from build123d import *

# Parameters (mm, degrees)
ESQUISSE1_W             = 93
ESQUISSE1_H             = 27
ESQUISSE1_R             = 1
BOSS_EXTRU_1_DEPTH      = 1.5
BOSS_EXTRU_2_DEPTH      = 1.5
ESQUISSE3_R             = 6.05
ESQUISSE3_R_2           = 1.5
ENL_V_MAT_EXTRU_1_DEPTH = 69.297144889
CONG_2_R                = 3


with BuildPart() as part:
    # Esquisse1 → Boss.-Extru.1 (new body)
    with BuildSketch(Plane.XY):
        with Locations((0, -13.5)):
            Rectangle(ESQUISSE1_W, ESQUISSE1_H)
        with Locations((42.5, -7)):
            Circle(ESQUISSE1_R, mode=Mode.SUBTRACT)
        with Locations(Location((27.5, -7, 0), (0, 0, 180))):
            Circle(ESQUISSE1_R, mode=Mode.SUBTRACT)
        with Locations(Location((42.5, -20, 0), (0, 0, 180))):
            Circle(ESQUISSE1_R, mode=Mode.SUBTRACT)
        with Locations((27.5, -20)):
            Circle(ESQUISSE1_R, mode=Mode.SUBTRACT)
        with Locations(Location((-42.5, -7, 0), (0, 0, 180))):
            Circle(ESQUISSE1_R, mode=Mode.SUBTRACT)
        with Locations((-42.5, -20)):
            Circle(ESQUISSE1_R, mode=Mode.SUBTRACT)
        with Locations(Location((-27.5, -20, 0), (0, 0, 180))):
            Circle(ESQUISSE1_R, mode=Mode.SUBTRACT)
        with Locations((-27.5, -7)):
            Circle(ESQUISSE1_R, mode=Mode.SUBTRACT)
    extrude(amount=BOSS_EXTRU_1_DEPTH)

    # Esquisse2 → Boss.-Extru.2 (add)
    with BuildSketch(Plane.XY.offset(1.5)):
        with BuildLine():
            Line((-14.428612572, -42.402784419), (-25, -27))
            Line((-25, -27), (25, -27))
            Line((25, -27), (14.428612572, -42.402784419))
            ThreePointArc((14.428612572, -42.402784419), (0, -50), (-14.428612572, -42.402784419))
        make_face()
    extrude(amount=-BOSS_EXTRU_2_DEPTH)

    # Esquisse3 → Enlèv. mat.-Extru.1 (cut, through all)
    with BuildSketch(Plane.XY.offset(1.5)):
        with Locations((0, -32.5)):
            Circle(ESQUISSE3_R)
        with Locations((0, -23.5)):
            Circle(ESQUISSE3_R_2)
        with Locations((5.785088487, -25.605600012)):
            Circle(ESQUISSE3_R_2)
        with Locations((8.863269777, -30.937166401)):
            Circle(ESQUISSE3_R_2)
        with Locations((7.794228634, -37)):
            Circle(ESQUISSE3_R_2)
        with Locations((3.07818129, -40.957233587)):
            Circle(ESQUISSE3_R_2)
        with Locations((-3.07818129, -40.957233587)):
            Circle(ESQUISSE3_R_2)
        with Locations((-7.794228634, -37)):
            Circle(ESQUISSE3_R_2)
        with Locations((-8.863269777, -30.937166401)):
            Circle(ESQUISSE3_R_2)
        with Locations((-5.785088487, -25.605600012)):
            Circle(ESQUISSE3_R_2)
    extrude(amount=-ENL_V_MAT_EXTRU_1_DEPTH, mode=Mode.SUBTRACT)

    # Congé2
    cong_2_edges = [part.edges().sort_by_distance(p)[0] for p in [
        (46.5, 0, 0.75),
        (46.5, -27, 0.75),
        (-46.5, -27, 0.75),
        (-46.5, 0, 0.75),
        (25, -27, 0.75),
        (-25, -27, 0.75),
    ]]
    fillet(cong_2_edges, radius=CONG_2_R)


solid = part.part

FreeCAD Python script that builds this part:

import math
import FreeCAD as App
import Part
import Sketcher

V = App.Vector


def edges_at(feature, points):
    """Names of the edges that pass closest to the given points."""
    edges = feature.Shape.Edges
    near = lambda p: min(range(len(edges)), key=lambda i: edges[i].distToShape(Part.Vertex(*p))[0])
    return sorted({f"Edge{near(p) + 1}" for p in points})

doc = App.newDocument("Part")
body = doc.addObject("PartDesign::Body", "Body")

# Sketch on XY plane
sketch1 = body.newObject("Sketcher::SketchObject", "Sketch")
sketch1.AttachmentSupport = (doc.getObject("XY_Plane"), [""])
sketch1.MapMode = "FlatFace"
sketch1.addGeometry(Part.LineSegment(V(-46.5, 0, 0), V(-46.5, -27, 0)), False)
sketch1.addGeometry(Part.LineSegment(V(-46.5, -27, 0), V(46.5, -27, 0)), False)
sketch1.addGeometry(Part.LineSegment(V(46.5, -27, 0), V(46.5, 0, 0)), False)
sketch1.addGeometry(Part.LineSegment(V(46.5, 0, 0), V(-46.5, 0, 0)), False)
sketch1.addGeometry(Part.Circle(V(-42.5, -20, 0), V(0, 0, 1), 1), False)
sketch1.addGeometry(Part.Circle(V(-27.5, -20, 0), V(0, 0, 1), 1), False)
sketch1.addGeometry(Part.Circle(V(27.5, -20, 0), V(0, 0, 1), 1), False)
sketch1.addGeometry(Part.Circle(V(42.5, -20, 0), V(0, 0, 1), 1), False)
sketch1.addGeometry(Part.Circle(V(-42.5, -7, 0), V(0, 0, 1), 1), False)
sketch1.addGeometry(Part.Circle(V(-27.5, -7, 0), V(0, 0, 1), 1), False)
sketch1.addGeometry(Part.Circle(V(27.5, -7, 0), V(0, 0, 1), 1), False)
sketch1.addGeometry(Part.Circle(V(42.5, -7, 0), V(0, 0, 1), 1), False)
sketch1.addConstraint(Sketcher.Constraint("Coincident", 0, 2, 1, 1))
sketch1.addConstraint(Sketcher.Constraint("Coincident", 1, 2, 2, 1))
sketch1.addConstraint(Sketcher.Constraint("Coincident", 2, 2, 3, 1))
sketch1.addConstraint(Sketcher.Constraint("Coincident", 3, 2, 0, 1))
sketch1.addConstraint(Sketcher.Constraint("Vertical", 0))
sketch1.addConstraint(Sketcher.Constraint("Horizontal", 1))
sketch1.addConstraint(Sketcher.Constraint("Vertical", 2))
sketch1.addConstraint(Sketcher.Constraint("Horizontal", 3))
sketch1.addConstraint(Sketcher.Constraint("Equal", 4, 5))
sketch1.addConstraint(Sketcher.Constraint("Equal", 5, 6))
sketch1.addConstraint(Sketcher.Constraint("Equal", 6, 7))
sketch1.addConstraint(Sketcher.Constraint("Equal", 7, 8))
sketch1.addConstraint(Sketcher.Constraint("Equal", 8, 9))
sketch1.addConstraint(Sketcher.Constraint("Equal", 9, 10))
sketch1.addConstraint(Sketcher.Constraint("Equal", 10, 11))
sketch1.addConstraint(Sketcher.Constraint("Symmetric", 2, 2, 3, 2, -1, 1))
sketch1.addConstraint(Sketcher.Constraint("Symmetric", 5, 3, 6, 3, -2))
sketch1.addConstraint(Sketcher.Constraint("Symmetric", 4, 3, 7, 3, -2))
sketch1.addConstraint(Sketcher.Constraint("Symmetric", 9, 3, 10, 3, -2))
sketch1.addConstraint(Sketcher.Constraint("Symmetric", 8, 3, 11, 3, -2))
sketch1.addConstraint(Sketcher.Constraint("Horizontal", 4, 3, 5, 3))
sketch1.addConstraint(Sketcher.Constraint("Horizontal", 8, 3, 9, 3))
sketch1.addConstraint(Sketcher.Constraint("Vertical", 4, 3, 8, 3))
sketch1.addConstraint(Sketcher.Constraint("Vertical", 5, 3, 9, 3))
sketch1.addConstraint(Sketcher.Constraint("Diameter", 4, 2.0))
sketch1.addConstraint(Sketcher.Constraint("DistanceX", 1, 1, 1, 2, 93.0))
sketch1.addConstraint(Sketcher.Constraint("DistanceY", 0, 2, 0, 1, 27.0))
sketch1.addConstraint(Sketcher.Constraint("DistanceY", 4, 3, -1, 1, 20.0))
sketch1.addConstraint(Sketcher.Constraint("DistanceY", 8, 3, -1, 1, 7.0))
sketch1.addConstraint(Sketcher.Constraint("DistanceX", 4, 3, 5, 3, 15.0))
sketch1.addConstraint(Sketcher.Constraint("DistanceX", 5, 3, 6, 3, 55.0))
pad1 = body.newObject("PartDesign::Pad", "Pad")
pad1.Profile = sketch1
pad1.Length = 1.5

# Sketch on XY plane
sketch2 = body.newObject("Sketcher::SketchObject", "Sketch001")
sketch2.AttachmentSupport = (doc.getObject("XY_Plane"), [""])
sketch2.MapMode = "FlatFace"
sketch2.AttachmentOffset = App.Placement(V(0, 0, 1.5), App.Rotation())
sketch2.addGeometry(Part.LineSegment(V(-25, -27, 0), V(-14, -42, 0)), False)
sketch2.addGeometry(Part.ArcOfCircle(Part.Circle(V(0, -32, 0), V(0, 0, 1), 18), math.radians(-146), math.radians(-34)), False)
sketch2.addGeometry(Part.LineSegment(V(14, -42, 0), V(25, -27, 0)), False)
sketch2.addGeometry(Part.LineSegment(V(25, -27, 0), V(-25, -27, 0)), False)
sketch2.addConstraint(Sketcher.Constraint("Tangent", 0, 2, 1, 1))
sketch2.addConstraint(Sketcher.Constraint("Tangent", 1, 2, 2, 1))
sketch2.addConstraint(Sketcher.Constraint("Coincident", 2, 2, 3, 1))
sketch2.addConstraint(Sketcher.Constraint("Coincident", 3, 2, 0, 1))
sketch2.addConstraint(Sketcher.Constraint("Horizontal", 3))
sketch2.addConstraint(Sketcher.Constraint("Symmetric", 0, 2, 1, 2, -2))
sketch2.addConstraint(Sketcher.Constraint("Radius", 1, 17.5))
sketch2.addConstraint(Sketcher.Constraint("DistanceX", 3, 2, 3, 1, 50.0))
sketch2.addConstraint(Sketcher.Constraint("DistanceY", 2, 2, -1, 1, 27.0))
sketch2.addConstraint(Sketcher.Constraint("DistanceY", 1, 3, -1, 1, 32.5))
pad2 = body.newObject("PartDesign::Pad", "Pad001")
pad2.Profile = sketch2
pad2.Length = 1.5
pad2.Reversed = True

# Sketch on XY plane
sketch3 = body.newObject("Sketcher::SketchObject", "Sketch002")
sketch3.AttachmentSupport = (doc.getObject("XY_Plane"), [""])
sketch3.MapMode = "FlatFace"
sketch3.AttachmentOffset = App.Placement(V(0, 0, 1.5), App.Rotation())
sketch3.addGeometry(Part.Circle(V(0, -32.5, 0), V(0, 0, 1), 6), False)
sketch3.addGeometry(Part.Circle(V(0, -23.5, 0), V(0, 0, 1), 1.5), False)
sketch3.addGeometry(Part.Circle(V(5.8, -25.6, 0), V(0, 0, 1), 1.5), False)
sketch3.addGeometry(Part.Circle(V(8.9, -30.9, 0), V(0, 0, 1), 1.5), False)
sketch3.addGeometry(Part.Circle(V(7.8, -37, 0), V(0, 0, 1), 1.5), False)
sketch3.addGeometry(Part.Circle(V(3.1, -41, 0), V(0, 0, 1), 1.5), False)
sketch3.addGeometry(Part.Circle(V(-3.1, -41, 0), V(0, 0, 1), 1.5), False)
sketch3.addGeometry(Part.Circle(V(-7.8, -37, 0), V(0, 0, 1), 1.5), False)
sketch3.addGeometry(Part.Circle(V(-8.9, -30.9, 0), V(0, 0, 1), 1.5), False)
sketch3.addGeometry(Part.Circle(V(-5.8, -25.6, 0), V(0, 0, 1), 1.5), False)
sketch3.addConstraint(Sketcher.Constraint("Equal", 1, 2))
sketch3.addConstraint(Sketcher.Constraint("Equal", 2, 3))
sketch3.addConstraint(Sketcher.Constraint("Equal", 3, 4))
sketch3.addConstraint(Sketcher.Constraint("Equal", 4, 5))
sketch3.addConstraint(Sketcher.Constraint("Equal", 5, 6))
sketch3.addConstraint(Sketcher.Constraint("Equal", 6, 7))
sketch3.addConstraint(Sketcher.Constraint("Equal", 7, 8))
sketch3.addConstraint(Sketcher.Constraint("Equal", 8, 9))
sketch3.addConstraint(Sketcher.Constraint("Symmetric", 5, 3, 6, 3, -2))
sketch3.addConstraint(Sketcher.Constraint("Symmetric", 4, 3, 7, 3, -2))
sketch3.addConstraint(Sketcher.Constraint("Symmetric", 3, 3, 8, 3, -2))
sketch3.addConstraint(Sketcher.Constraint("Symmetric", 2, 3, 9, 3, -2))
sketch3.addConstraint(Sketcher.Constraint("PointOnObject", 0, 3, -2))
sketch3.addConstraint(Sketcher.Constraint("PointOnObject", 1, 3, -2))
sketch3.addConstraint(Sketcher.Constraint("Diameter", 1, 3.0))
sketch3.addConstraint(Sketcher.Constraint("Diameter", 0, 12.1))
sketch3.addConstraint(Sketcher.Constraint("DistanceY", 4, 3, -1, 1, 37.0))
sketch3.addConstraint(Sketcher.Constraint("DistanceY", 0, 3, 1, 3, 9.0))
sketch3.addConstraint(Sketcher.Constraint("DistanceY", 0, 3, -1, 1, 32.5))
sketch3.addConstraint(Sketcher.Constraint("DistanceY", 2, 3, -1, 1, 25.6056))
sketch3.addConstraint(Sketcher.Constraint("DistanceX", -1, 1, 2, 3, 5.785088))
sketch3.addConstraint(Sketcher.Constraint("DistanceX", -1, 1, 3, 3, 8.86327))
sketch3.addConstraint(Sketcher.Constraint("DistanceX", -1, 1, 4, 3, 7.794229))
sketch3.addConstraint(Sketcher.Constraint("DistanceX", -1, 1, 5, 3, 3.078181))
sketch3.addConstraint(Sketcher.Constraint("DistanceY", 3, 3, -1, 1, 30.937166))
sketch3.addConstraint(Sketcher.Constraint("DistanceY", 5, 3, -1, 1, 40.957234))
pocket1 = body.newObject("PartDesign::Pocket", "Pocket")
pocket1.Profile = sketch3
pocket1.Type = "ThroughAll"
doc.recompute()

fillet = body.newObject("PartDesign::Fillet", "Fillet")
fillet.Base = (pocket1, edges_at(pocket1, [
    (46.5, 0, 0.75),
    (46.5, -27, 0.75),
    (-46.5, -27, 0.75),
    (-46.5, 0, 0.75),
    (25, -27, 0.75),
    (-25, -27, 0.75),
]))
fillet.Radius = 3

doc.recompute()
